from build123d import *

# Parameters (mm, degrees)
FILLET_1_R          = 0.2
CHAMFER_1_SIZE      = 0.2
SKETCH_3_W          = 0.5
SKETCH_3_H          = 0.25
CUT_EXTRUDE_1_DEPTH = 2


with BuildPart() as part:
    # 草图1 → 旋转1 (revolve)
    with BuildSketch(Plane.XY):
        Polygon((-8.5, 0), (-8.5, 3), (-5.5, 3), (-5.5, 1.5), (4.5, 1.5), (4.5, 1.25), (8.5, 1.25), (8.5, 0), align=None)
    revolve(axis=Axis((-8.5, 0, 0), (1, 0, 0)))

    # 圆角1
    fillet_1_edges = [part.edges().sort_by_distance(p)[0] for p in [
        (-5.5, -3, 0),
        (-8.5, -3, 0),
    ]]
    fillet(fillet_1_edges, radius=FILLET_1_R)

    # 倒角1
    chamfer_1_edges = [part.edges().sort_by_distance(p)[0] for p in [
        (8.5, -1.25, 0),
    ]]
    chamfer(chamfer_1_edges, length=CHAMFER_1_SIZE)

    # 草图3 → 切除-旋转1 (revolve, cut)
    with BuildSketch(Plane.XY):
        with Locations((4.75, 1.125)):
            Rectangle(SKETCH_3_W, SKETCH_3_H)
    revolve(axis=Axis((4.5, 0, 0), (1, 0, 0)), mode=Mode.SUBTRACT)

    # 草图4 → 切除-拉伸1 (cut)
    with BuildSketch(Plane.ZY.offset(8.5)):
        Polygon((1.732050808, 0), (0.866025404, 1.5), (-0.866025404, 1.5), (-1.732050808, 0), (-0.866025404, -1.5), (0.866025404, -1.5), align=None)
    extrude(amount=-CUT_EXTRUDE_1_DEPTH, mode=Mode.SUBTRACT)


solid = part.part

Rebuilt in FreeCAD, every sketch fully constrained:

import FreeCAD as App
import Part
import Sketcher
Q = App.Units.Quantity


def edges_at(feature, points):
    """Names of the edges that pass closest to the given points."""
    edges = feature.Shape.Edges
    near = lambda p: min(range(len(edges)), key=lambda i: edges[i].distToShape(Part.Vertex(*p))[0])
    return sorted({f"Edge{near(p) + 1}" for p in points})


def add_polygon(sketch, points):
    """Adds a closed chain of lines whose ends are joined by coincident constraints."""
    first, n = sketch.GeometryCount, len(points)
    for a, b in zip(points, points[1:] + points[:1]):
        sketch.addGeometry(Part.LineSegment(App.Vector(*a, 0), App.Vector(*b, 0)), False)
    for i in range(n):
        sketch.addConstraint(Sketcher.Constraint("Coincident", first + i, 2, first + (i + 1) % n, 1))

doc = App.newDocument("Part")
body = doc.addObject("PartDesign::Body", "Body")

# Sketch on XY plane
sketch1 = doc.addObject("Sketcher::SketchObject", "Sketch")
body.addObject(sketch1)
sketch1.AttachmentSupport = (doc.XY_Plane, [""])
sketch1.MapMode = "FlatFace"
add_polygon(sketch1, [(-8.5, 3), (-8.5, 0), (8.5, 0), (8.5, 1.25), (4.5, 1.25), (4.5, 1.5), (-5.5, 1.5), (-5.5, 3)])  # lines 0-7
sketch1.addConstraint(Sketcher.Constraint("Vertical", 0))
sketch1.addConstraint(Sketcher.Constraint("Horizontal", 1))
sketch1.addConstraint(Sketcher.Constraint("Vertical", 2))
sketch1.addConstraint(Sketcher.Constraint("Horizontal", 3))
sketch1.addConstraint(Sketcher.Constraint("Vertical", 4))
sketch1.addConstraint(Sketcher.Constraint("Horizontal", 5))
sketch1.addConstraint(Sketcher.Constraint("Vertical", 6))
sketch1.addConstraint(Sketcher.Constraint("Horizontal", 7))
sketch1.addConstraint(Sketcher.Constraint("Symmetric", 0, 2, 1, 2, -1, 1))
sketch1.addConstraint(Sketcher.Constraint("Equal", 7, 0))
sketch1.addConstraint(Sketcher.Constraint("DistanceX", 1, 1, 1, 2, 17.0))
sketch1.addConstraint(Sketcher.Constraint("DistanceX", 3, 2, 3, 1, 4.0))
sketch1.addConstraint(Sketcher.Constraint("DistanceX", 5, 2, 5, 1, 10.0))
sketch1.addConstraint(Sketcher.Constraint("DistanceY", 6, 1, 6, 2, 1.5))
sketch1.addConstraint(Sketcher.Constraint("DistanceY", 2, 1, 2, 2, 1.25))
revolution = doc.addObject("PartDesign::Revolution", "Revolution")
body.addObject(revolution)
revolution.Profile = sketch1
revolution.ReferenceAxis = (sketch1, ["H_Axis"])
revolution.Angle = 360
doc.recompute()

fillet = doc.addObject("PartDesign::Fillet", "Fillet")
body.addObject(fillet)
fillet.Base = (revolution, edges_at(revolution, [(-5.5, -3, 0), (-8.5, -3, 0)]))
fillet.Radius = 0.2
doc.recompute()

chamfer = doc.addObject("PartDesign::Chamfer", "Chamfer")
body.addObject(chamfer)
chamfer.Base = (fillet, edges_at(fillet, [(8.5, -1.25, 0)]))
chamfer.Size = 0.2

# Sketch on XY plane
sketch2 = doc.addObject("Sketcher::SketchObject", "Sketch001")
body.addObject(sketch2)
sketch2.AttachmentSupport = (doc.XY_Plane, [""])
sketch2.MapMode = "FlatFace"
add_polygon(sketch2, [(4.5, 1.25), (4.5, 1), (5, 1), (5, 1.25)])  # lines 0-3
sketch2.addConstraint(Sketcher.Constraint("Vertical", 0))
sketch2.addConstraint(Sketcher.Constraint("Horizontal", 1))
sketch2.addConstraint(Sketcher.Constraint("Vertical", 2))
sketch2.addConstraint(Sketcher.Constraint("Horizontal", 3))
sketch2.addConstraint(Sketcher.Constraint("DistanceX", 1, 1, 1, 2, 0.5))
sketch2.addConstraint(Sketcher.Constraint("DistanceY", -1, 1, 0, 2, 1.0))
sketch2.addConstraint(Sketcher.Constraint("DistanceX", -1, 1, 1, 2, 5.0))
sketch2.addConstraint(Sketcher.Constraint("DistanceY", 0, 2, 0, 1, 0.25))
groove = doc.addObject("PartDesign::Groove", "Groove")
body.addObject(groove)
groove.Profile = sketch2
groove.ReferenceAxis = (sketch2, ["H_Axis"])
groove.Angle = 360

# Sketch on YZ plane
sketch3 = doc.addObject("Sketcher::SketchObject", "Sketch002")
body.addObject(sketch3)
sketch3.AttachmentSupport = (doc.YZ_Plane, [""])
sketch3.MapMode = "FlatFace"
sketch3.AttachmentOffset = App.Placement(App.Vector(0, 0, -8.5), App.Rotation())
add_polygon(sketch3, [(0, 1.732051), (1.5, 0.866025), (1.5, -0.866025), (0, -1.732051), (-1.5, -0.866025), (-1.5, 0.866025)])  # lines 0-5
sketch3.addConstraint(Sketcher.Constraint("Vertical", 1))
sketch3.addConstraint(Sketcher.Constraint("Vertical", 4))
sketch3.addConstraint(Sketcher.Constraint("Symmetric", 0, 2, 3, 2, -1, 1))
sketch3.addConstraint(Sketcher.Constraint("Symmetric", 2, 2, 5, 2, -1, 1))
sketch3.addConstraint(Sketcher.Constraint("PointOnObject", 2, 2, -2))
sketch3.addConstraint(Sketcher.Constraint("Parallel", 2, 5))
sketch3.addConstraint(Sketcher.Constraint("Horizontal", 1, 2, 3, 2))
sketch3.addConstraint(Sketcher.Constraint("Angle", 0, Q("-30 deg")))
sketch3.addConstraint(Sketcher.Constraint("DistanceX", 3, 2, 1, 2, 3.0))
sketch3.addConstraint(Sketcher.Constraint("DistanceY", 1, 2, 1, 1, 1.732051))
pocket1 = doc.addObject("PartDesign::Pocket", "Pocket")
body.addObject(pocket1)
pocket1.Profile = sketch3
pocket1.Length = 2
pocket1.Reversed = True

doc.recompute()
